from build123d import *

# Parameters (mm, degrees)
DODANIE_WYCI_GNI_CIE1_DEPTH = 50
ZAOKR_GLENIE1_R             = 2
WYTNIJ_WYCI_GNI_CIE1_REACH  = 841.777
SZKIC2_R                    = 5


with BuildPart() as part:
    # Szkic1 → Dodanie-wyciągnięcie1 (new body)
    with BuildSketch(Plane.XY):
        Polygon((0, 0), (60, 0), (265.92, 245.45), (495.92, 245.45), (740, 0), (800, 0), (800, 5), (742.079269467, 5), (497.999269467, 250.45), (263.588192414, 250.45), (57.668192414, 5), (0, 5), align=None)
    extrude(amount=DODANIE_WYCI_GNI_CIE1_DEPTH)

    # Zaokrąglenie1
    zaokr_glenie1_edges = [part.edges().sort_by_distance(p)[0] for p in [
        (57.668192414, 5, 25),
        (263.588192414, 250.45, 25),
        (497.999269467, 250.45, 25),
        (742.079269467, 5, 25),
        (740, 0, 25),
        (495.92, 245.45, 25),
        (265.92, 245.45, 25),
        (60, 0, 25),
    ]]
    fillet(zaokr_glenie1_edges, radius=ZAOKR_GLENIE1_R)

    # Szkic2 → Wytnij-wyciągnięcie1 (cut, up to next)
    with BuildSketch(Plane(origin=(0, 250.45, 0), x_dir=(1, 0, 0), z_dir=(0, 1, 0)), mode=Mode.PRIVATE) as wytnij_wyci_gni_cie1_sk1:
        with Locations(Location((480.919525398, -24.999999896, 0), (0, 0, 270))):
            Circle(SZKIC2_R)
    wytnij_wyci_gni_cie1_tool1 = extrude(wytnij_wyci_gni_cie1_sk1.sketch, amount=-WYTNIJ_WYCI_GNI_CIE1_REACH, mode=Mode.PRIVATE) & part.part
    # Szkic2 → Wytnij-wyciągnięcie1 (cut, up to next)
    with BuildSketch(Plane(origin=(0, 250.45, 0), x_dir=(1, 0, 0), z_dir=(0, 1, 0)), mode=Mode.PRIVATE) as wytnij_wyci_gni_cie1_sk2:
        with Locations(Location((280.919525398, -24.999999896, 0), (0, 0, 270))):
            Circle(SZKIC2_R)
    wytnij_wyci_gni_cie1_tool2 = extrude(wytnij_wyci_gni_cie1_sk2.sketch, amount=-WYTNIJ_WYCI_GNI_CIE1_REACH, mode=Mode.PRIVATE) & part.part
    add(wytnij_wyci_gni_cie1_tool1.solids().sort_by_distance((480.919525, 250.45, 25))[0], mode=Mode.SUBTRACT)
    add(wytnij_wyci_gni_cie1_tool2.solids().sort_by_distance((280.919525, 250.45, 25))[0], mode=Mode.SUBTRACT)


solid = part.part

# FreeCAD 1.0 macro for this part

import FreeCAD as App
import Part
import Sketcher

V = App.Vector


def edges_at(feature, points):
    """Names of the edges that pass closest to the given points."""
    edges = feature.Shape.Edges
    near = lambda p: min(range(len(edges)), key=lambda i: edges[i].distToShape(Part.Vertex(*p))[0])
    return sorted({f"Edge{near(p) + 1}" for p in points})

doc = App.newDocument("Part")
body = doc.addObject("PartDesign::Body", "Body")

# Sketch on XY plane
sketch1 = body.newObject("Sketcher::SketchObject", "Sketch")
sketch1.AttachmentSupport = (doc.getObject("XY_Plane"), [""])
sketch1.MapMode = "FlatFace"
sketch1.addGeometry([
    Part.LineSegment(V(0, 0, 0), V(60, 0, 0)),  # 0
    Part.LineSegment(V(60, 0, 0), V(266, 245, 0)),  # 1
    Part.LineSegment(V(266, 245, 0), V(496, 245, 0)),  # 2
    Part.LineSegment(V(496, 245, 0), V(740, 0, 0)),  # 3
    Part.LineSegment(V(740, 0, 0), V(800, 0, 0)),  # 4
    Part.LineSegment(V(800, 0, 0), V(800, 5, 0)),  # 5
    Part.LineSegment(V(800, 5, 0), V(742, 5, 0)),  # 6
    Part.LineSegment(V(742, 5, 0), V(498, 250, 0)),  # 7
    Part.LineSegment(V(498, 250, 0), V(264, 250, 0)),  # 8
    Part.LineSegment(V(264, 250, 0), V(58, 5, 0)),  # 9
    Part.LineSegment(V(58, 5, 0), V(0, 5, 0)),  # 10
    Part.LineSegment(V(0, 5, 0), V(0, 0, 0)),  # 11
], False)
sketch1.addConstraint([
    Sketcher.Constraint("Coincident", 0, 2, 1, 1),
    Sketcher.Constraint("Coincident", 1, 2, 2, 1),
    Sketcher.Constraint("Coincident", 2, 2, 3, 1),
    Sketcher.Constraint("Coincident", 3, 2, 4, 1),
    Sketcher.Constraint("Coincident", 4, 2, 5, 1),
    Sketcher.Constraint("Coincident", 5, 2, 6, 1),
    Sketcher.Constraint("Coincident", 6, 2, 7, 1),
    Sketcher.Constraint("Coincident", 7, 2, 8, 1),
    Sketcher.Constraint("Coincident", 8, 2, 9, 1),
    Sketcher.Constraint("Coincident", 9, 2, 10, 1),
    Sketcher.Constraint("Coincident", 10, 2, 11, 1),
    Sketcher.Constraint("Coincident", 11, 2, 0, 1),
    Sketcher.Constraint("Horizontal", 0),
    Sketcher.Constraint("Horizontal", 2),
    Sketcher.Constraint("Horizontal", 4),
    Sketcher.Constraint("Vertical", 5),
    Sketcher.Constraint("Horizontal", 6),
    Sketcher.Constraint("Horizontal", 8),
    Sketcher.Constraint("Horizontal", 10),
    Sketcher.Constraint("Vertical", 11),
    Sketcher.Constraint("Coincident", 11, 2, -1, 1),
    Sketcher.Constraint("PointOnObject", 3, 2, -1),
    Sketcher.Constraint("Parallel", 3, 7),
    Sketcher.Constraint("Parallel", 1, 9),
    Sketcher.Constraint("Horizontal", 6, 2, 9, 2),
    Sketcher.Constraint("Equal", 0, 4),
    Sketcher.Constraint("Equal", 3, 7),
    Sketcher.Constraint("DistanceX", 0, 1, 0, 2, 60.0),
    Sketcher.Constraint("DistanceX", 2, 1, 2, 2, 230.0),
    Sketcher.Constraint("DistanceY", 5, 1, 5, 2, 5.0),
    Sketcher.Constraint("DistanceX", -1, 1, 3, 2, 740.0),
    Sketcher.Constraint("DistanceX", -1, 1, 1, 2, 265.92),
    Sketcher.Constraint("DistanceY", -1, 1, 1, 2, 245.45),
    Sketcher.Constraint("DistanceX", 6, 2, 6, 1, 57.920731),
    Sketcher.Constraint("DistanceX", 8, 2, 8, 1, 234.411077),
])
pad1 = body.newObject("PartDesign::Pad", "Pad")
pad1.Profile = sketch1
pad1.Length = 50
doc.recompute()

fillet = body.newObject("PartDesign::Fillet", "Fillet")
fillet.Base = (pad1, edges_at(pad1, [
    (57.668, 5, 25),
    (263.588, 250.45, 25),
    (497.999, 250.45, 25),
    (742.079, 5, 25),
    (740, 0, 25),
    (495.92, 245.45, 25),
    (265.92, 245.45, 25),
    (60, 0, 25),
]))
fillet.Radius = 2

# Sketch on XZ plane
sketch2 = body.newObject("Sketcher::SketchObject", "Sketch001")
sketch2.AttachmentSupport = (doc.getObject("XZ_Plane"), [""])
sketch2.MapMode = "FlatFace"
sketch2.AttachmentOffset = App.Placement(V(0, 0, -250.45), App.Rotation())
sketch2.addGeometry(Part.Circle(V(481, 25, 0), V(0, 0, 1), 5), False)
sketch2.addConstraint([
    Sketcher.Constraint("Diameter", 0, 10.0),
    Sketcher.Constraint("DistanceY", -1, 1, 0, 3, 25.0),
    Sketcher.Constraint("DistanceX", -1, 1, 0, 3, 480.919525),
])
pocket1 = body.newObject("PartDesign::Pocket", "Pocket")
pocket1.Profile = sketch2
pocket1.Type = "UpToFirst"
pocket1.Reversed = True

# Sketch on XZ plane
sketch3 = body.newObject("Sketcher::SketchObject", "Sketch002")
sketch3.AttachmentSupport = (doc.getObject("XZ_Plane"), [""])
sketch3.MapMode = "FlatFace"
sketch3.AttachmentOffset = App.Placement(V(0, 0, -250.45), App.Rotation())
sketch3.addGeometry(Part.Circle(V(281, 25, 0), V(0, 0, 1), 5), False)
sketch3.addConstraint([
    Sketcher.Constraint("Diameter", 0, 10.0),
    Sketcher.Constraint("DistanceY", -1, 1, 0, 3, 25.0),
    Sketcher.Constraint("DistanceX", -1, 1, 0, 3, 280.919525),
])
pocket2 = body.newObject("PartDesign::Pocket", "Pocket001")
pocket2.Profile = sketch3
pocket2.Type = "UpToFirst"
pocket2.Reversed = True

doc.recompute()
